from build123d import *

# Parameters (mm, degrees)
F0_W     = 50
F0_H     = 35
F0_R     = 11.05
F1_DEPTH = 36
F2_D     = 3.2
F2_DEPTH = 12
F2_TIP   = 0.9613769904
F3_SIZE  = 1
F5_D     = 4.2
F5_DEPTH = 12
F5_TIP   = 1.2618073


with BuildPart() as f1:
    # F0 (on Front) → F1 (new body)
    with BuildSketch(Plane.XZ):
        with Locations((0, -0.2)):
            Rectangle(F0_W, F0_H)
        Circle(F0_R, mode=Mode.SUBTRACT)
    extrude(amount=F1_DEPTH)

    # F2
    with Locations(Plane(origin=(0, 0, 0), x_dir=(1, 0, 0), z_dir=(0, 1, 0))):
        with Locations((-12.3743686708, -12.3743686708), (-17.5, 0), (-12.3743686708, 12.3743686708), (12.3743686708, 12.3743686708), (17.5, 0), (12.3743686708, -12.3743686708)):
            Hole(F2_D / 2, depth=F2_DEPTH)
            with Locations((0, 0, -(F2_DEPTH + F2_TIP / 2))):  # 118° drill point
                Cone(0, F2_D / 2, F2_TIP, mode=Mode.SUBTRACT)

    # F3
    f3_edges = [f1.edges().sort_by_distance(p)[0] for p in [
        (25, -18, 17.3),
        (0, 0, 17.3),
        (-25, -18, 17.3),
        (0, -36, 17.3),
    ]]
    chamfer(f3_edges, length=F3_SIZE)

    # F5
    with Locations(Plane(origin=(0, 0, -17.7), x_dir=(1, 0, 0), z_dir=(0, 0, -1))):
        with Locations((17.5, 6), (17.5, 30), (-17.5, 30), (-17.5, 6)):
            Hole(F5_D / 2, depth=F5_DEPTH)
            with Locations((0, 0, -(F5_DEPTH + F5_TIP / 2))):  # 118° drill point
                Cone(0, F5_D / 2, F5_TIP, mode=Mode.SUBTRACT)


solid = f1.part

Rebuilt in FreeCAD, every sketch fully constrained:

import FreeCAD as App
import Part
import Sketcher
from FreeCAD import Vector
Q = App.Units.Quantity


def edges_at(feature, points):
    """Names of the edges that pass closest to the given points."""
    edges = feature.Shape.Edges
    near = lambda p: min(range(len(edges)), key=lambda i: edges[i].distToShape(Part.Vertex(*p))[0])
    return sorted({f"Edge{near(p) + 1}" for p in points})


def add_polygon(sketch, points):
    """Adds a closed chain of lines whose ends are joined by coincident constraints."""
    first, n = sketch.GeometryCount, len(points)
    for a, b in zip(points, points[1:] + points[:1]):
        sketch.addGeometry(Part.LineSegment(App.Vector(*a, 0), App.Vector(*b, 0)), False)
    for i in range(n):
        sketch.addConstraint(Sketcher.Constraint("Coincident", first + i, 2, first + (i + 1) % n, 1))

doc = App.newDocument("Part")
body = doc.addObject("PartDesign::Body", "Body")

# Sketch on XZ plane
sketch1 = body.newObject("Sketcher::SketchObject", "Sketch")
sketch1.AttachmentSupport = (doc.getObject("XZ_Plane"), [""])
sketch1.MapMode = "FlatFace"
add_polygon(sketch1, [(-25, 17), (-25, -18), (25, -18), (25, 17)])  # lines 0-3
sketch1.addGeometry(Part.Circle(Vector(0, 0, 0), Vector(0, 0, 1), 11), False)  # 4
sketch1.addConstraint(Sketcher.Constraint("Vertical", 0))
sketch1.addConstraint(Sketcher.Constraint("Horizontal", 1))
sketch1.addConstraint(Sketcher.Constraint("Vertical", 2))
sketch1.addConstraint(Sketcher.Constraint("Horizontal", 3))
sketch1.addConstraint(Sketcher.Constraint("Coincident", 4, 3, -1, 1))
sketch1.addConstraint(Sketcher.Constraint("Diameter", 4, Q("22.1 mm")))
sketch1.addConstraint(Sketcher.Constraint("DistanceX", 1, 1, 1, 2, Q("50 mm")))
sketch1.addConstraint(Sketcher.Constraint("DistanceY", 0, 2, 0, 1, Q("35 mm")))
sketch1.addConstraint(Sketcher.Constraint("DistanceX", 0, 2, -1, 1, Q("25 mm")))
sketch1.addConstraint(Sketcher.Constraint("DistanceY", 0, 2, -1, 1, Q("17.7 mm")))
pad1 = body.newObject("PartDesign::Pad", "Pad")
pad1.Profile = sketch1
pad1.Length = 36

# Sketch on XZ plane
sketch2 = body.newObject("Sketcher::SketchObject", "Sketch001")
sketch2.AttachmentSupport = (doc.getObject("XZ_Plane"), [""])
sketch2.MapMode = "FlatFace"
sketch2.addGeometry(Part.Circle(Vector(-12.4, 12.4, 0), Vector(0, 0, 1), 1.6), False)
sketch2.addGeometry(Part.Circle(Vector(-17.5, 0, 0), Vector(0, 0, 1), 1.6), False)
sketch2.addGeometry(Part.Circle(Vector(-12.4, -12.4, 0), Vector(0, 0, 1), 1.6), False)
sketch2.addGeometry(Part.Circle(Vector(12.4, -12.4, 0), Vector(0, 0, 1), 1.6), False)
sketch2.addGeometry(Part.Circle(Vector(17.5, 0, 0), Vector(0, 0, 1), 1.6), False)
sketch2.addGeometry(Part.Circle(Vector(12.4, 12.4, 0), Vector(0, 0, 1), 1.6), False)
sketch2.addConstraint(Sketcher.Constraint("Equal", 0, 1))
sketch2.addConstraint(Sketcher.Constraint("Equal", 1, 2))
sketch2.addConstraint(Sketcher.Constraint("Equal", 2, 3))
sketch2.addConstraint(Sketcher.Constraint("Equal", 3, 4))
sketch2.addConstraint(Sketcher.Constraint("Equal", 4, 5))
sketch2.addConstraint(Sketcher.Constraint("Symmetric", 0, 3, 3, 3, -1, 1))
sketch2.addConstraint(Sketcher.Constraint("Symmetric", 1, 3, 4, 3, -1, 1))
sketch2.addConstraint(Sketcher.Constraint("Symmetric", 2, 3, 5, 3, -1, 1))
sketch2.addConstraint(Sketcher.Constraint("Symmetric", 2, 3, 3, 3, -2))
sketch2.addConstraint(Sketcher.Constraint("PointOnObject", 1, 3, -1))
sketch2.addConstraint(Sketcher.Constraint("Diameter", 0, Q("3.2 mm")))
sketch2.addConstraint(Sketcher.Constraint("DistanceX", 1, 3, 4, 3, Q("35 mm")))
sketch2.addConstraint(Sketcher.Constraint("DistanceX", 0, 3, -1, 1, Q("12.374369 mm")))
sketch2.addConstraint(Sketcher.Constraint("DistanceY", -1, 1, 0, 3, Q("12.374369 mm")))
doc.recompute()
hole = body.newObject("PartDesign::Hole", "Hole")
hole.Profile = sketch2
hole.ThreadType = "None"
hole.Diameter = 3.2
hole.DepthType = "Dimension"
hole.Depth = 12
hole.DrillPoint = "Angled"
hole.DrillPointAngle = 118
hole.Reversed = True
doc.recompute()

chamfer = body.newObject("PartDesign::Chamfer", "Chamfer")
chamfer.Base = (hole, edges_at(hole, [
    (25, -18, 17.3),
    (0, 0, 17.3),
    (-25, -18, 17.3),
    (0, -36, 17.3),
]))
chamfer.Size = 1

# Sketch on XY plane
sketch3 = body.newObject("Sketcher::SketchObject", "Sketch002")
sketch3.AttachmentSupport = (doc.getObject("XY_Plane"), [""])
sketch3.MapMode = "FlatFace"
sketch3.AttachmentOffset = App.Placement(Vector(0, 0, -17.7), App.Rotation())
sketch3.addGeometry(Part.Circle(Vector(17.5, -6, 0), Vector(0, 0, 1), 2.1), False)
sketch3.addGeometry(Part.Circle(Vector(17.5, -30, 0), Vector(0, 0, 1), 2.1), False)
sketch3.addGeometry(Part.Circle(Vector(-17.5, -30, 0), Vector(0, 0, 1), 2.1), False)
sketch3.addGeometry(Part.Circle(Vector(-17.5, -6, 0), Vector(0, 0, 1), 2.1), False)
sketch3.addConstraint(Sketcher.Constraint("Equal", 0, 1))
sketch3.addConstraint(Sketcher.Constraint("Equal", 1, 2))
sketch3.addConstraint(Sketcher.Constraint("Equal", 2, 3))
sketch3.addConstraint(Sketcher.Constraint("Symmetric", 1, 3, 2, 3, -2))
sketch3.addConstraint(Sketcher.Constraint("Symmetric", 0, 3, 3, 3, -2))
sketch3.addConstraint(Sketcher.Constraint("Vertical", 0, 3, 1, 3))
sketch3.addConstraint(Sketcher.Constraint("Diameter", 0, Q("4.2 mm")))
sketch3.addConstraint(Sketcher.Constraint("DistanceY", 0, 3, -1, 1, Q("6 mm")))
sketch3.addConstraint(Sketcher.Constraint("DistanceY", 1, 3, -1, 1, Q("30 mm")))
sketch3.addConstraint(Sketcher.Constraint("DistanceX", 2, 3, 1, 3, Q("35 mm")))
doc.recompute()
hole2 = body.newObject("PartDesign::Hole", "Hole001")
hole2.Profile = sketch3
hole2.ThreadType = "None"
hole2.Diameter = 4.2
hole2.DepthType = "Dimension"
hole2.Depth = 12
hole2.DrillPoint = "Angled"
hole2.DrillPointAngle = 118
hole2.Reversed = True

doc.recompute()
